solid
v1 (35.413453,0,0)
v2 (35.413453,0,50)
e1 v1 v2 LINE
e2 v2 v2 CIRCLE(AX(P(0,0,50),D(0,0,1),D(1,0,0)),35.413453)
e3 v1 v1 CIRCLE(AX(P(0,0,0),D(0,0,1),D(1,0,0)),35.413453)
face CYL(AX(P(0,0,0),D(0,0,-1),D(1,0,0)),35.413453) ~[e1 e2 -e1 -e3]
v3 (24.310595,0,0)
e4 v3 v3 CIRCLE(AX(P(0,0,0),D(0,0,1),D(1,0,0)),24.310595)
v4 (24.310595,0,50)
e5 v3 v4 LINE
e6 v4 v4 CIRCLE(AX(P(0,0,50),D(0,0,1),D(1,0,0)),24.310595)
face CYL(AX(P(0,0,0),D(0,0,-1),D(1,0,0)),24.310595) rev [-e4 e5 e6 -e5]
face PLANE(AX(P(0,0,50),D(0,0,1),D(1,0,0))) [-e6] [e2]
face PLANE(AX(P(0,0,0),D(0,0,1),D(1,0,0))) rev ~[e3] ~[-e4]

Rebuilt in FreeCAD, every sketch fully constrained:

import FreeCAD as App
import Part
import Sketcher

doc = App.newDocument("Part")
body = doc.addObject("PartDesign::Body", "Body")

# Sketch on XY plane
sketch1 = doc.addObject("Sketcher::SketchObject", "Sketch")
body.addObject(sketch1)
sketch1.AttachmentSupport = (doc.XY_Plane, [""])
sketch1.MapMode = "FlatFace"
sketch1.addGeometry(Part.Circle(App.Vector(0, 0, 0), App.Vector(0, 0, 1), 35), False)
sketch1.addConstraint([
    Sketcher.Constraint("Coincident", 0, 3, -1, 1),
    Sketcher.Constraint("Diameter", 0, 70.826906),
])
pad1 = doc.addObject("PartDesign::Pad", "Pad")
body.addObject(pad1)
pad1.Profile = sketch1
pad1.Length = 50

# Sketch on XY plane
sketch2 = doc.addObject("Sketcher::SketchObject", "Sketch001")
body.addObject(sketch2)
sketch2.AttachmentSupport = (doc.XY_Plane, [""])
sketch2.MapMode = "FlatFace"
sketch2.addGeometry(Part.Circle(App.Vector(0, 0, 0), App.Vector(0, 0, 1), 31), False)
sketch2.addConstraint([
    Sketcher.Constraint("Coincident", 0, 3, -1, 1),
    Sketcher.Constraint("Diameter", 0, 61.935194),
])
pocket1 = doc.addObject("PartDesign::Pocket", "Pocket")
body.addObject(pocket1)
pocket1.Profile = sketch2
pocket1.Length = 50

# Sketch on XY plane
sketch3 = doc.addObject("Sketcher::SketchObject", "Sketch002")
body.addObject(sketch3)
sketch3.AttachmentSupport = (doc.XY_Plane, [""])
sketch3.MapMode = "FlatFace"
sketch3.addGeometry(Part.Circle(App.Vector(0, 0, 0), App.Vector(0, 0, 1), 30), False)
sketch3.addConstraint([
    Sketcher.Constraint("Coincident", 0, 3, -1, 1),
    Sketcher.Constraint("Diameter", 0, 60.810866),
])
pocket2 = doc.addObject("PartDesign::Pocket", "Pocket001")
body.addObject(pocket2)
pocket2.Profile = sketch3
pocket2.Length = 50

# Sketch on XY plane
sketch4 = doc.addObject("Sketcher::SketchObject", "Sketch003")
body.addObject(sketch4)
sketch4.AttachmentSupport = (doc.XY_Plane, [""])
sketch4.MapMode = "FlatFace"
sketch4.addGeometry(Part.Circle(App.Vector(0, 0, 0), App.Vector(0, 0, 1), 24), False)
sketch4.addConstraint([
    Sketcher.Constraint("Coincident", 0, 3, -1, 1),
    Sketcher.Constraint("Diameter", 0, 48.62119),
])
pocket3 = doc.addObject("PartDesign::Pocket", "Pocket002")
body.addObject(pocket3)
pocket3.Profile = sketch4
pocket3.Length = 50
pocket3.Reversed = True

doc.recompute()
